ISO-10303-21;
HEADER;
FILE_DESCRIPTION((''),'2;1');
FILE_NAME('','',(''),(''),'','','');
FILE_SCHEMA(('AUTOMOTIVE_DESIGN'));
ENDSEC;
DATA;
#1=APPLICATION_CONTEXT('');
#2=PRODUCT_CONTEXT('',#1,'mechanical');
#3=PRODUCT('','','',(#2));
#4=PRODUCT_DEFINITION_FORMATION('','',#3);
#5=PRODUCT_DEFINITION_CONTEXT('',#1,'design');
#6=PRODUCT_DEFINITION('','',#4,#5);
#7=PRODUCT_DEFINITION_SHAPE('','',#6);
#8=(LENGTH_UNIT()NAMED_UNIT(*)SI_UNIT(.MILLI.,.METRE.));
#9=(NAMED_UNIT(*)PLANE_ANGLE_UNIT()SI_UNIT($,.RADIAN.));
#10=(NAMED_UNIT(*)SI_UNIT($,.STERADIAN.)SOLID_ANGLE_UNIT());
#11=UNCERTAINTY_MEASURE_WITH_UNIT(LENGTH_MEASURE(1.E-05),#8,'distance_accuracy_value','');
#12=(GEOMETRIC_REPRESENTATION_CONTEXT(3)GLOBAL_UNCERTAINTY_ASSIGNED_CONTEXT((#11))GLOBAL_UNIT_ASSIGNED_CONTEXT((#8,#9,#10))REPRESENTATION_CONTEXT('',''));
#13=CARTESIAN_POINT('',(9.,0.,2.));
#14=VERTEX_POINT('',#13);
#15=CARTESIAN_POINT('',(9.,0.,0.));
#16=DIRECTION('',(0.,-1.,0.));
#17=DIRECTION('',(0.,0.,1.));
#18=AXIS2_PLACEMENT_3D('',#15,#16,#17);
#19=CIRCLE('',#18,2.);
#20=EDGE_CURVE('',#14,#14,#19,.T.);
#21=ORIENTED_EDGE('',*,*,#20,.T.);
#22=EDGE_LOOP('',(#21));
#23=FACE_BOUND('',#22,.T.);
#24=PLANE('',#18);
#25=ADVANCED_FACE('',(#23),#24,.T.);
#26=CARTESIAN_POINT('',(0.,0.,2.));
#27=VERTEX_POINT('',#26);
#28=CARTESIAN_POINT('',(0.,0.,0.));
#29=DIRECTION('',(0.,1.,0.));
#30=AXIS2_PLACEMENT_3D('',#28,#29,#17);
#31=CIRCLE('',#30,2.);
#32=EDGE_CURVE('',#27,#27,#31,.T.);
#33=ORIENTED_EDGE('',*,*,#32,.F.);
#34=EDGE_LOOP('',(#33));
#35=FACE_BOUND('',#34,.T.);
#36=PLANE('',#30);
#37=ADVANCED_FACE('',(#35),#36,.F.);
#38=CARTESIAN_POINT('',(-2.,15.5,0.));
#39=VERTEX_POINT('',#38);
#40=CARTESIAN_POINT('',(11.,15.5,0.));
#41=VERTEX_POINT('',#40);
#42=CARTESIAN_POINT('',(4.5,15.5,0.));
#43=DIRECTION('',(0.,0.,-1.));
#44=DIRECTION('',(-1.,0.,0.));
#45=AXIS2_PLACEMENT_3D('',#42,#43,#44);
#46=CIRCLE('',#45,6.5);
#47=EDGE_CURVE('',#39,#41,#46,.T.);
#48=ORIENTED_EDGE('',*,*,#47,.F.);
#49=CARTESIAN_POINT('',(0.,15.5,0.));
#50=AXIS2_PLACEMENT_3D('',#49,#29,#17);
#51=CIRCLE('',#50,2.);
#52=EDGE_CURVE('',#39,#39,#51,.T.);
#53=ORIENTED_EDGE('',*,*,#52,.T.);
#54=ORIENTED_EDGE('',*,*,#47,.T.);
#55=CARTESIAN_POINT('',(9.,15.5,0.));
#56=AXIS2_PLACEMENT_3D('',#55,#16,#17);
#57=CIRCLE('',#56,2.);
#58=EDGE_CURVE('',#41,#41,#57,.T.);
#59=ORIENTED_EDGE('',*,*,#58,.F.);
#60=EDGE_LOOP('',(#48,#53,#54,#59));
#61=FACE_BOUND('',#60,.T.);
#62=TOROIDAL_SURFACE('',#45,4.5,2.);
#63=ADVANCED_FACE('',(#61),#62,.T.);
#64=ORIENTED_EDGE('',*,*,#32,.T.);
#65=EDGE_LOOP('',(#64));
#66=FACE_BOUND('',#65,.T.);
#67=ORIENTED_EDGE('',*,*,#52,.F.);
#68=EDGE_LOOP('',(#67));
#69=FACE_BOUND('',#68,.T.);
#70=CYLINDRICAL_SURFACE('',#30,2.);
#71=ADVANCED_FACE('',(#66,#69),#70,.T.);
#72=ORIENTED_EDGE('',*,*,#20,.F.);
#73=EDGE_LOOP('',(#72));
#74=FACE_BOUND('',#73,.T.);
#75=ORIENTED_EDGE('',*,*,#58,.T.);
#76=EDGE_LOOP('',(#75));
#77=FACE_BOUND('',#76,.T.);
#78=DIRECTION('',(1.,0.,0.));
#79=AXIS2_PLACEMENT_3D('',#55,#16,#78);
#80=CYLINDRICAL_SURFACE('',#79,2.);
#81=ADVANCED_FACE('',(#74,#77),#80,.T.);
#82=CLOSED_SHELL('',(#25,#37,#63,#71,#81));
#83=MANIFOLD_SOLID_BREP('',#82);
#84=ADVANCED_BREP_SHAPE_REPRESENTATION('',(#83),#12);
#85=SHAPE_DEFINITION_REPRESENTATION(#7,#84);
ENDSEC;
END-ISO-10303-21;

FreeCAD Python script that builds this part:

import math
import FreeCAD as App
import Part
import Sketcher

doc = App.newDocument("Part")
body = doc.addObject("PartDesign::Body", "Body")

# Sketch on XZ plane
sketch1 = body.newObject("Sketcher::SketchObject", "Sketch")
sketch1.AttachmentSupport = (doc.getObject("XZ_Plane"), [""])
sketch1.MapMode = "FlatFace"
sketch1.addGeometry(Part.Circle(App.Vector(0, 0, 0), App.Vector(0, 0, 1), 2), False)
sketch1.addConstraint([
    Sketcher.Constraint("Coincident", 0, 3, -1, 1),
    Sketcher.Constraint("Diameter", 0, 4.0),
])

# Sketch on XY plane
sketch2 = body.newObject("Sketcher::SketchObject", "Sketch001")
sketch2.AttachmentSupport = (doc.getObject("XY_Plane"), [""])
sketch2.MapMode = "FlatFace"
sketch2.addGeometry([
    Part.LineSegment(App.Vector(0, 0, 0), App.Vector(0, 15.5, 0)),
    Part.ArcOfCircle(Part.Circle(App.Vector(4.5, 15.5, 0), App.Vector(0, 0, 1), 4.5), math.radians(0), math.radians(180)),
    Part.LineSegment(App.Vector(9, 15.5, 0), App.Vector(9, 0, 0)),
], False)
sketch2.addConstraint([
    Sketcher.Constraint("Tangent", 0, 2, 1, 2),
    Sketcher.Constraint("Tangent", 1, 1, 2, 1),
    Sketcher.Constraint("Vertical", 0),
    Sketcher.Constraint("Vertical", 2),
    Sketcher.Constraint("Coincident", 0, 1, -1, 1),
    Sketcher.Constraint("PointOnObject", 2, 2, -1),
    Sketcher.Constraint("Radius", 1, 4.5),
    Sketcher.Constraint("DistanceY", 0, 1, 0, 2, 15.5),
])
doc.recompute()

additivepipe = body.newObject("PartDesign::AdditivePipe", "AdditivePipe")
additivepipe.Profile = sketch1
additivepipe.Spine = (sketch2, ["Edge1", "Edge2", "Edge3"])

doc.recompute()
